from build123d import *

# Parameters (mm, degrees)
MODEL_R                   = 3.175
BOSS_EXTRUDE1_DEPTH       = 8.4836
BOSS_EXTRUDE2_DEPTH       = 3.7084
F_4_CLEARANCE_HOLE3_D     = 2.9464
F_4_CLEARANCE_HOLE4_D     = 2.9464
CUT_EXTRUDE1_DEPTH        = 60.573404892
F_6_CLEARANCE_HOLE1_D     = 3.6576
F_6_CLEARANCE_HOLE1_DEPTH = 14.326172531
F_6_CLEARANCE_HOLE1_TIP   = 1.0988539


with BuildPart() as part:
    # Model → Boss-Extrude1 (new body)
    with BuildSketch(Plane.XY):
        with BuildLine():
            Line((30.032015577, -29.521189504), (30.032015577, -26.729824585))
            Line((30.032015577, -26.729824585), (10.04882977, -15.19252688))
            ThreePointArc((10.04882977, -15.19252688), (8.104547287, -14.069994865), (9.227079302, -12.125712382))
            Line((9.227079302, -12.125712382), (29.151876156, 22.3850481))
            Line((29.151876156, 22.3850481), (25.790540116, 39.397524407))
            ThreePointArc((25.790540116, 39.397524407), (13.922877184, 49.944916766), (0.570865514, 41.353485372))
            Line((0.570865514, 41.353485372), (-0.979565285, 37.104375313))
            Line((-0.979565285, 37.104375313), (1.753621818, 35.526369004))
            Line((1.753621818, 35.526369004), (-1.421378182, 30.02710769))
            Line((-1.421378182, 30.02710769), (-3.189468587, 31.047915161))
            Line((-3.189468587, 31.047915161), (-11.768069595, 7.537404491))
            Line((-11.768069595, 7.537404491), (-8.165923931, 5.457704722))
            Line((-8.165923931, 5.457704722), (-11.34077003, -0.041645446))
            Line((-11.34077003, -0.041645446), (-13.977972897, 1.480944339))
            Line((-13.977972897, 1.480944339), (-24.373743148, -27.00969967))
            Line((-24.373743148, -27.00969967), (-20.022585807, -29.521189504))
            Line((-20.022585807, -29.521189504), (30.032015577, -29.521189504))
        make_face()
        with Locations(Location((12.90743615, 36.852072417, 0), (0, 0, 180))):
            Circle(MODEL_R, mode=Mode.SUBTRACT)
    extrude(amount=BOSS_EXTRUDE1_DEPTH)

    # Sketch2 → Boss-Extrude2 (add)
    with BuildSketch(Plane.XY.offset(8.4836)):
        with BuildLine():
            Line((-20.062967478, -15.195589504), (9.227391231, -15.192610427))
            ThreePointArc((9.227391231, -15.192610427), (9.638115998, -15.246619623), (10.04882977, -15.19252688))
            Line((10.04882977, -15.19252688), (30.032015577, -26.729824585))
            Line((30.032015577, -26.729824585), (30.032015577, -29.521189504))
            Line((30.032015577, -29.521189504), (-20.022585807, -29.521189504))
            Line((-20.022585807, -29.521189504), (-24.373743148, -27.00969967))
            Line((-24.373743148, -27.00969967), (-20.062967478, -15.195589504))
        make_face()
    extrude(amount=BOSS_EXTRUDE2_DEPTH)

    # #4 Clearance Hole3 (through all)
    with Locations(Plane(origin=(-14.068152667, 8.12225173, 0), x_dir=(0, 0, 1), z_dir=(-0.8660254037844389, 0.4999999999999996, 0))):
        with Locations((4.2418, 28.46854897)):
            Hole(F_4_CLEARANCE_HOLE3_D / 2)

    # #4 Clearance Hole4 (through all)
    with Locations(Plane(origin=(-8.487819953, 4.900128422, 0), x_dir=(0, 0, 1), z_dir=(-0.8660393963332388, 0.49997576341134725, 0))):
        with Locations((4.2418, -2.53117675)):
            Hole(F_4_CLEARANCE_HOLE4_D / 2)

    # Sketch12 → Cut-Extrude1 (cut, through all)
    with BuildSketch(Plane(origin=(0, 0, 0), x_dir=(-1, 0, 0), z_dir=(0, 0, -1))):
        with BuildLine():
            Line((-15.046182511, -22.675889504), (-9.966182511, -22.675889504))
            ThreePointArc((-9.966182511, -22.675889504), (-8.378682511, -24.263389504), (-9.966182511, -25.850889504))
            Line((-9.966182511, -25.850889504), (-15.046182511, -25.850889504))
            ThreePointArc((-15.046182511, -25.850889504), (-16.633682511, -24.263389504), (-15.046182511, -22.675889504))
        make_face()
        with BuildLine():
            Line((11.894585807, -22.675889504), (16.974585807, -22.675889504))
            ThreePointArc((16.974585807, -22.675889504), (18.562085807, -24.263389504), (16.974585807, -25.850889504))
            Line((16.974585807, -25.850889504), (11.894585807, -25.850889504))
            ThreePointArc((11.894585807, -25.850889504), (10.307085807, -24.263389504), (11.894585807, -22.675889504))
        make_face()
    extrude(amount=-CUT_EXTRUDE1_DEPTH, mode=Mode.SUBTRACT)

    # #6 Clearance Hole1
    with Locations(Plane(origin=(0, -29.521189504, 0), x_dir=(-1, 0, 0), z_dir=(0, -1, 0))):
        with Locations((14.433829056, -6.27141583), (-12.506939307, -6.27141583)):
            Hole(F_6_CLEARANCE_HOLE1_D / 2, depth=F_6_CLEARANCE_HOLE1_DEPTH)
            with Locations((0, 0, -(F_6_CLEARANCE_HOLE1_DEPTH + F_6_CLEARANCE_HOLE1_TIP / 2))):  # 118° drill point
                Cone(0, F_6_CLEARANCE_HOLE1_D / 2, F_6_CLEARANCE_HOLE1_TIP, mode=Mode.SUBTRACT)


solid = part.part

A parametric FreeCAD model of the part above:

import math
import FreeCAD as App
import Part
import Sketcher
from FreeCAD import Vector
Q = App.Units.Quantity

doc = App.newDocument("Part")
body = doc.addObject("PartDesign::Body", "Body")

sketch1 = body.newObject("Sketcher::SketchObject", "Sketch")
sketch1.AttachmentSupport = (doc.getObject("XY_Plane"), [""])
sketch1.MapMode = "FlatFace"
sketch1.addGeometry([
    Part.LineSegment(Vector(30, -29.5, 0), Vector(30, -26.7, 0)),
    Part.LineSegment(Vector(30, -26.7, 0), Vector(10, -15.2, 0)),
    Part.ArcOfCircle(Part.Circle(Vector(9.6, -13.7, 0), Vector(0, 0, 1), 1.6), math.radians(105), math.radians(285)),
    Part.LineSegment(Vector(9.2, -12.1, 0), Vector(29.2, 22.4, 0)),
    Part.LineSegment(Vector(29.2, 22.4, 0), Vector(25.8, 39.4, 0)),
    Part.ArcOfCircle(Part.Circle(Vector(12.9, 36.9, 0), Vector(0, 0, 1), 13.1), math.radians(11), math.radians(160)),
    Part.LineSegment(Vector(0.6, 41.4, 0), Vector(-1, 37.1, 0)),
    Part.LineSegment(Vector(-1, 37.1, 0), Vector(1.8, 35.5, 0)),
    Part.LineSegment(Vector(1.8, 35.5, 0), Vector(-1.4, 30, 0)),
    Part.LineSegment(Vector(-1.4, 30, 0), Vector(-3.2, 31, 0)),
    Part.LineSegment(Vector(-3.2, 31, 0), Vector(-11.8, 7.5, 0)),
    Part.LineSegment(Vector(-11.8, 7.5, 0), Vector(-8.2, 5.5, 0)),
    Part.LineSegment(Vector(-8.2, 5.5, 0), Vector(-11.3, 0, 0)),
    Part.LineSegment(Vector(-11.3, 0, 0), Vector(-14, 1.5, 0)),
    Part.LineSegment(Vector(-14, 1.5, 0), Vector(-24.4, -27, 0)),
    Part.LineSegment(Vector(-24.4, -27, 0), Vector(-20, -29.5, 0)),
    Part.LineSegment(Vector(-20, -29.5, 0), Vector(30, -29.5, 0)),
    Part.Circle(Vector(12.9, 36.9, 0), Vector(0, 0, 1), 3.2),
], False)
sketch1.addConstraint([
    Sketcher.Constraint("Coincident", 0, 2, 1, 1),
    Sketcher.Constraint("Coincident", 1, 2, 2, 2),
    Sketcher.Constraint("Coincident", 2, 1, 3, 1),
    Sketcher.Constraint("Coincident", 3, 2, 4, 1),
    Sketcher.Constraint("Tangent", 4, 2, 5, 1),
    Sketcher.Constraint("Tangent", 5, 2, 6, 1),
    Sketcher.Constraint("Coincident", 6, 2, 7, 1),
    Sketcher.Constraint("Coincident", 7, 2, 8, 1),
    Sketcher.Constraint("Coincident", 8, 2, 9, 1),
    Sketcher.Constraint("Coincident", 9, 2, 10, 1),
    Sketcher.Constraint("Coincident", 10, 2, 11, 1),
    Sketcher.Constraint("Coincident", 11, 2, 12, 1),
    Sketcher.Constraint("Coincident", 12, 2, 13, 1),
    Sketcher.Constraint("Coincident", 13, 2, 14, 1),
    Sketcher.Constraint("Coincident", 14, 2, 15, 1),
    Sketcher.Constraint("Coincident", 15, 2, 16, 1),
    Sketcher.Constraint("Coincident", 16, 2, 0, 1),
    Sketcher.Constraint("Vertical", 0),
    Sketcher.Constraint("Horizontal", 16),
    Sketcher.Constraint("Coincident", 17, 3, 5, 3),
    Sketcher.Constraint("Perpendicular", 1, 3),
    Sketcher.Constraint("Perpendicular", 3, 7),
    Sketcher.Constraint("Perpendicular", 7, 8),
    Sketcher.Constraint("Perpendicular", 8, 9),
    Sketcher.Constraint("Parallel", 6, 10),
    Sketcher.Constraint("Parallel", 9, 11),
    Sketcher.Constraint("Parallel", 11, 13),
    Sketcher.Constraint("Parallel", 10, 14),
    Sketcher.Constraint("Equal", 8, 12),
    Sketcher.Constraint("Diameter", 17, Q("0.25 in")),
    Sketcher.Constraint("Angle", 1, Q("150 deg")),
    Sketcher.Constraint("Radius", 2, Q("0.0625 in")),
    Sketcher.Constraint("Distance", 8, Q("0.25 in")),
    Sketcher.Constraint("DistanceY", 1, 2, 5, 3, Q("2.049 in")),
    Sketcher.Constraint("DistanceX", 16, 1, 16, 2, Q("50.054601 mm")),
    Sketcher.Constraint("Radius", 5, Q("13.132163 mm")),
    Sketcher.Constraint("Distance", 11, Q("4.1594 mm")),
    Sketcher.Constraint("DistanceY", 14, 2, -1, 1, Q("27.0097 mm")),
    Sketcher.Constraint("DistanceX", 6, 2, 5, 3, Q("13.887001 mm")),
    Sketcher.Constraint("DistanceX", 10, 2, 9, 2, Q("8.578601 mm")),
    Sketcher.Constraint("DistanceX", 10, 2, 12, 2, Q("0.4273 mm")),
    Sketcher.Constraint("DistanceX", 12, 2, 1, 2, Q("21.3896 mm")),
    Sketcher.Constraint("Distance", 13, Q("3.04518 mm")),
    Sketcher.Constraint("Distance", 14, Q("30.328021 mm")),
    Sketcher.Constraint("DistanceY", 0, 1, 0, 2, Q("2.791365 mm")),
    Sketcher.Constraint("DistanceY", 2, 3, -1, 1, Q("13.65912 mm")),
    Sketcher.Constraint("DistanceX", -1, 1, 1, 2, Q("10.04883 mm")),
    Sketcher.Constraint("DistanceX", -1, 1, 2, 1, Q("9.227079 mm")),
    Sketcher.Constraint("DistanceY", -1, 1, 3, 2, Q("22.385048 mm")),
    Sketcher.Constraint("DistanceX", -1, 1, 4, 2, Q("25.79054 mm")),
    Sketcher.Constraint("DistanceX", -1, 1, 7, 2, Q("1.753622 mm")),
    Sketcher.Constraint("DistanceY", -1, 1, 7, 2, Q("35.526369 mm")),
    Sketcher.Constraint("DistanceY", 15, 2, -1, 1, Q("29.52119 mm")),
])
pad1 = body.newObject("PartDesign::Pad", "Pad")
pad1.Profile = sketch1
pad1.Length = Q("0.334 in")

sketch2 = body.newObject("Sketcher::SketchObject", "Sketch001")
sketch2.AttachmentSupport = (doc.getObject("XY_Plane"), [""])
sketch2.MapMode = "FlatFace"
sketch2.AttachmentOffset = App.Placement(Vector(0, 0, 0.334 * 25.4), App.Rotation())
sketch2.addGeometry([
    Part.LineSegment(Vector(9.2, -15.2, 0), Vector(-20.1, -15.2, 0)),
    Part.LineSegment(Vector(-20.1, -15.2, 0), Vector(-24.4, -27, 0)),
    Part.LineSegment(Vector(-24.4, -27, 0), Vector(-20, -29.5, 0)),
    Part.LineSegment(Vector(-20, -29.5, 0), Vector(30, -29.5, 0)),
    Part.LineSegment(Vector(30, -29.5, 0), Vector(30, -26.7, 0)),
    Part.LineSegment(Vector(30, -26.7, 0), Vector(10, -15.2, 0)),
    Part.ArcOfCircle(Part.Circle(Vector(9.6, -13.7, 0), Vector(0, 0, 1), 1.6), math.radians(-105), math.radians(-75)),
], False)
sketch2.addConstraint([
    Sketcher.Constraint("Coincident", 0, 2, 1, 1),
    Sketcher.Constraint("Coincident", 1, 2, 2, 1),
    Sketcher.Constraint("Coincident", 2, 2, 3, 1),
    Sketcher.Constraint("Coincident", 3, 2, 4, 1),
    Sketcher.Constraint("Coincident", 4, 2, 5, 1),
    Sketcher.Constraint("Coincident", 5, 2, 6, 2),
    Sketcher.Constraint("Coincident", 6, 1, 0, 1),
    Sketcher.Constraint("Horizontal", 3),
    Sketcher.Constraint("Vertical", 4),
    Sketcher.Constraint("Angle", 5, Q("150 deg")),
    Sketcher.Constraint("Radius", 6, Q("0.0625 in")),
    Sketcher.Constraint("DistanceY", 2, 2, 0, 2, Q("0.564 in")),
    Sketcher.Constraint("DistanceX", 3, 1, 3, 2, Q("50.054601 mm")),
    Sketcher.Constraint("DistanceY", 1, 2, -1, 1, Q("27.0097 mm")),
    Sketcher.Constraint("Distance", 0, Q("29.290359 mm")),
    Sketcher.Constraint("Distance", 1, Q("12.576008 mm")),
    Sketcher.Constraint("DistanceY", 4, 1, 4, 2, Q("2.791365 mm")),
    Sketcher.Constraint("DistanceY", 6, 3, -1, 1, Q("13.65912 mm")),
    Sketcher.Constraint("DistanceY", 0, 2, -1, 1, Q("15.19559 mm")),
    Sketcher.Constraint("DistanceX", -1, 1, 5, 2, Q("10.04883 mm")),
    Sketcher.Constraint("DistanceX", -1, 1, 6, 1, Q("9.227391 mm")),
    Sketcher.Constraint("DistanceY", 6, 1, -1, 1, Q("15.19261 mm")),
])
pad2 = body.newObject("PartDesign::Pad", "Pad001")
pad2.Profile = sketch2
pad2.Length = Q("0.146 in")

sketch3 = body.newObject("Sketcher::SketchObject", "Sketch002")
sketch3.Placement = App.Placement(Vector(-14.068153, 8.122252, 0), App.Rotation(Vector(0, 0, 1), Vector(0.5, 0.866025404, 0), Vector(-0.866025404, 0.5, 0), "ZXY"))
sketch3.addGeometry(Part.Circle(Vector(4.2, 28.5, 0), Vector(0, 0, 1), 1.5), False)
sketch3.addConstraint([
    Sketcher.Constraint("Diameter", 0, Q("0.116 in")),
    Sketcher.Constraint("DistanceX", -1, 1, 0, 3, Q("0.167 in")),
    Sketcher.Constraint("DistanceY", -1, 1, 0, 3, Q("28.468549 mm")),
])
doc.recompute()
hole = body.newObject("PartDesign::Hole", "Hole")
hole.Profile = sketch3
hole.ThreadType = "None"
hole.Diameter = Q("0.116 in")
hole.DepthType = "ThroughAll"

sketch4 = body.newObject("Sketcher::SketchObject", "Sketch003")
sketch4.Placement = App.Placement(Vector(-8.48782, 4.900128, 0), App.Rotation(Vector(0, 0, 1), Vector(0.499975763, 0.866039396, 0), Vector(-0.866039396, 0.499975763, 0), "ZXY"))
sketch4.addGeometry(Part.Circle(Vector(4.2, -2.5, 0), Vector(0, 0, 1), 1.5), False)
sketch4.addConstraint([
    Sketcher.Constraint("Diameter", 0, Q("0.116 in")),
    Sketcher.Constraint("DistanceX", -1, 1, 0, 3, Q("0.167 in")),
    Sketcher.Constraint("DistanceY", 0, 3, -1, 1, Q("2.531177 mm")),
])
doc.recompute()
hole2 = body.newObject("PartDesign::Hole", "Hole001")
hole2.Profile = sketch4
hole2.ThreadType = "None"
hole2.Diameter = Q("0.116 in")
hole2.DepthType = "ThroughAll"

sketch5 = body.newObject("Sketcher::SketchObject", "Sketch004")
sketch5.AttachmentSupport = (doc.getObject("XY_Plane"), [""])
sketch5.MapMode = "FlatFace"
sketch5.addGeometry([
    Part.LineSegment(Vector(10, -22.7, 0), Vector(15, -22.7, 0)),
    Part.ArcOfCircle(Part.Circle(Vector(15, -24.3, 0), Vector(0, 0, 1), 1.6), math.radians(-90), math.radians(90)),
    Part.LineSegment(Vector(15, -25.9, 0), Vector(10, -25.9, 0)),
    Part.ArcOfCircle(Part.Circle(Vector(10, -24.3, 0), Vector(0, 0, 1), 1.6), math.radians(90), math.radians(270)),
    Part.LineSegment(Vector(-17, -22.7, 0), Vector(-11.9, -22.7, 0)),
    Part.ArcOfCircle(Part.Circle(Vector(-11.9, -24.3, 0), Vector(0, 0, 1), 1.6), math.radians(-90), math.radians(90)),
    Part.LineSegment(Vector(-11.9, -25.9, 0), Vector(-17, -25.9, 0)),
    Part.ArcOfCircle(Part.Circle(Vector(-17, -24.3, 0), Vector(0, 0, 1), 1.6), math.radians(90), math.radians(270)),
], False)
sketch5.addConstraint([
    Sketcher.Constraint("Tangent", 0, 2, 1, 2),
    Sketcher.Constraint("Tangent", 1, 1, 2, 1),
    Sketcher.Constraint("Tangent", 2, 2, 3, 2),
    Sketcher.Constraint("Tangent", 3, 1, 0, 1),
    Sketcher.Constraint("Tangent", 4, 2, 5, 2),
    Sketcher.Constraint("Tangent", 5, 1, 6, 1),
    Sketcher.Constraint("Tangent", 6, 2, 7, 2),
    Sketcher.Constraint("Tangent", 7, 1, 4, 1),
    Sketcher.Constraint("Horizontal", 0),
    Sketcher.Constraint("Horizontal", 2),
    Sketcher.Constraint("Horizontal", 4),
    Sketcher.Constraint("Horizontal", 6),
    Sketcher.Constraint("Equal", 3, 5),
    Sketcher.Constraint("Horizontal", 3, 3, 5, 3),
    Sketcher.Constraint("Equal", 2, 4),
    Sketcher.Constraint("DistanceX", 0, 1, 0, 2, Q("0.2 in")),
    Sketcher.Constraint("Radius", 1, Q("0.0625 in")),
    Sketcher.Constraint("DistanceY", 1, 3, -1, 1, Q("24.26339 mm")),
    Sketcher.Constraint("DistanceX", 5, 3, 3, 3, Q("21.860768 mm")),
    Sketcher.Constraint("DistanceX", -1, 1, 1, 3, Q("15.046183 mm")),
])
pocket1 = body.newObject("PartDesign::Pocket", "Pocket")
pocket1.Profile = sketch5
pocket1.Type = "ThroughAll"
pocket1.Reversed = True

sketch6 = body.newObject("Sketcher::SketchObject", "Sketch005")
sketch6.AttachmentSupport = (doc.getObject("XZ_Plane"), [""])
sketch6.MapMode = "FlatFace"
sketch6.AttachmentOffset = App.Placement(Vector(0, 0, 29.52119), App.Rotation())
sketch6.addGeometry([
    Part.Circle(Vector(-14.4, 6.3, 0), Vector(0, 0, 1), 1.8),
    Part.Circle(Vector(12.5, 6.3, 0), Vector(0, 0, 1), 1.8),
], False)
sketch6.addConstraint([
    Sketcher.Constraint("Equal", 0, 1),
    Sketcher.Constraint("Horizontal", 0, 3, 1, 3),
    Sketcher.Constraint("Diameter", 0, Q("0.144 in")),
    Sketcher.Constraint("DistanceX", 0, 3, -1, 1, Q("14.433829 mm")),
    Sketcher.Constraint("DistanceX", -1, 1, 1, 3, Q("12.506939 mm")),
    Sketcher.Constraint("DistanceY", -1, 1, 0, 3, Q("6.271416 mm")),
])
doc.recompute()
hole3 = body.newObject("PartDesign::Hole", "Hole002")
hole3.Profile = sketch6
hole3.ThreadType = "None"
hole3.Diameter = Q("0.144 in")
hole3.DepthType = "Dimension"
hole3.Depth = 14.326173
hole3.DrillPoint = "Angled"
hole3.DrillPointAngle = 118

doc.recompute()
